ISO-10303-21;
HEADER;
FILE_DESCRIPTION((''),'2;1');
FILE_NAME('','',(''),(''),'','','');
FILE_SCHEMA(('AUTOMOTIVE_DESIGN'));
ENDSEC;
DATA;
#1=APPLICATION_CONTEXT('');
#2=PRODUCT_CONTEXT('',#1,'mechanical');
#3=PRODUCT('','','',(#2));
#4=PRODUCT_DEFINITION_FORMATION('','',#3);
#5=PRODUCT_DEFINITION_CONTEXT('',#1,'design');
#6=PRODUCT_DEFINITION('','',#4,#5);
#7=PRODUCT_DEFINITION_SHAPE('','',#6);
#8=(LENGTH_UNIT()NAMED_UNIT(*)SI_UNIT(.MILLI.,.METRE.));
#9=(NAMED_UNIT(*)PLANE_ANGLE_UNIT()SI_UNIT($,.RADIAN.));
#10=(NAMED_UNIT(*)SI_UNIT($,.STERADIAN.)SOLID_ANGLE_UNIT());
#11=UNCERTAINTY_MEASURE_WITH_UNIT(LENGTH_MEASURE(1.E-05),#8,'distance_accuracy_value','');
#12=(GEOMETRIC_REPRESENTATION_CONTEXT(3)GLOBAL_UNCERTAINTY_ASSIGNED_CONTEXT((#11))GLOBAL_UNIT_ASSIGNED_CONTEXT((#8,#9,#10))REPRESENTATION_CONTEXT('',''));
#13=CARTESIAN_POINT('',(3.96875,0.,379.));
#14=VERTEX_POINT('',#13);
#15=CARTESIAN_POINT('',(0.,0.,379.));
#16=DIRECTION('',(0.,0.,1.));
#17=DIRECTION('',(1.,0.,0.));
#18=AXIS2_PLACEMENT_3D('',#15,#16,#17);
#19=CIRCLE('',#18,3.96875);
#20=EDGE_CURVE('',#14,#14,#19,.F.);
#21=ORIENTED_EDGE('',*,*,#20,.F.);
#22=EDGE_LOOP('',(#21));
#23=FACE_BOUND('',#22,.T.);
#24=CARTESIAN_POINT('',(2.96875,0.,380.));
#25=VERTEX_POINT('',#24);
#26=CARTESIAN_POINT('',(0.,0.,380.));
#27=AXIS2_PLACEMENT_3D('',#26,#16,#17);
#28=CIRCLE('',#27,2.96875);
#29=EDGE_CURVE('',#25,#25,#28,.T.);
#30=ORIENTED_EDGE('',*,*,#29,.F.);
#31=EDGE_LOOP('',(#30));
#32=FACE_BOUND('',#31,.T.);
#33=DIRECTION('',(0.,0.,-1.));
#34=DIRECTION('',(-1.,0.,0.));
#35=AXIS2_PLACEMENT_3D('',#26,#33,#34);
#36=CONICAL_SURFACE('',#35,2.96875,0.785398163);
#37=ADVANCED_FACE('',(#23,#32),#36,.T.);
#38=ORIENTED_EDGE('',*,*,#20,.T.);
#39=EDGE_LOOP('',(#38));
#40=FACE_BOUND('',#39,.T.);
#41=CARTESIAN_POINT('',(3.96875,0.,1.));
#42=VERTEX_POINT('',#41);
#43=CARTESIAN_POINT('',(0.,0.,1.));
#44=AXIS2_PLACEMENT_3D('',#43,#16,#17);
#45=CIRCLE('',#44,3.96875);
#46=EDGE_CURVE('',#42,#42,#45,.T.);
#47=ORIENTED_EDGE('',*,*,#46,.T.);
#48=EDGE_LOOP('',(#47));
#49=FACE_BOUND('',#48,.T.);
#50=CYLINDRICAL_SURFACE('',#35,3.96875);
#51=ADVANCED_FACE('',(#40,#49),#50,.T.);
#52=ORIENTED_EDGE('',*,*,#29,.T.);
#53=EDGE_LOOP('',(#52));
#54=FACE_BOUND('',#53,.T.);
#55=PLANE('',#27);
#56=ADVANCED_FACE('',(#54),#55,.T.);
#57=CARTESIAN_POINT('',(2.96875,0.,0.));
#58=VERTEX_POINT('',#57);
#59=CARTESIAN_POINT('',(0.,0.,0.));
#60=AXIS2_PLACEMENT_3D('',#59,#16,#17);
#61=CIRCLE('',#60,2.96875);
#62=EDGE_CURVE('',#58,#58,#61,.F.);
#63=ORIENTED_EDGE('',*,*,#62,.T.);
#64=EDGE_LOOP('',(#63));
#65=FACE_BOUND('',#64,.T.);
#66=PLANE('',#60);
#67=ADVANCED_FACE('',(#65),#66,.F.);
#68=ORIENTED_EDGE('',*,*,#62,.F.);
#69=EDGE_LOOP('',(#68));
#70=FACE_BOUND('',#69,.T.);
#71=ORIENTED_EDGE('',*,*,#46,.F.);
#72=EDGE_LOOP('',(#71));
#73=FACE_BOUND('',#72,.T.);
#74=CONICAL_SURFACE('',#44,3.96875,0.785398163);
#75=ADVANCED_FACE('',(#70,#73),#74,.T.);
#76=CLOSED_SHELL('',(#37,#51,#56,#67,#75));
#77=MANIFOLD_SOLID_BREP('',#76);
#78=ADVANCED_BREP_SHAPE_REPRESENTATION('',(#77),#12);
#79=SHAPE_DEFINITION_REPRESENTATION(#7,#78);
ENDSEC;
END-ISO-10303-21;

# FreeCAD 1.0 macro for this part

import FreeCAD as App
import Part
import Sketcher


def edges_at(feature, points):
    """Names of the edges that pass closest to the given points."""
    edges = feature.Shape.Edges
    near = lambda p: min(range(len(edges)), key=lambda i: edges[i].distToShape(Part.Vertex(*p))[0])
    return sorted({f"Edge{near(p) + 1}" for p in points})

doc = App.newDocument("Part")
body = doc.addObject("PartDesign::Body", "Body")

# Sketch on XY plane
sketch1 = doc.addObject("Sketcher::SketchObject", "Sketch")
body.addObject(sketch1)
sketch1.AttachmentSupport = (doc.XY_Plane, [""])
sketch1.MapMode = "FlatFace"
sketch1.addGeometry(Part.Circle(App.Vector(0, 0, 0), App.Vector(0, 0, 1), 4), False)
sketch1.addConstraint(Sketcher.Constraint("Coincident", 0, 3, -1, 1))
sketch1.addConstraint(Sketcher.Constraint("Diameter", 0, 7.9375))
pad1 = doc.addObject("PartDesign::Pad", "Pad")
body.addObject(pad1)
pad1.Profile = sketch1
pad1.Length = 380
doc.recompute()

chamfer = doc.addObject("PartDesign::Chamfer", "Chamfer")
body.addObject(chamfer)
chamfer.Base = (pad1, edges_at(pad1, [(-3.969, 0, 0)]))
chamfer.Size = 1
doc.recompute()

chamfer2 = doc.addObject("PartDesign::Chamfer", "Chamfer001")
body.addObject(chamfer2)
chamfer2.Base = (chamfer, edges_at(chamfer, [(-3.969, 0, 380)]))
chamfer2.Size = 1

doc.recompute()
